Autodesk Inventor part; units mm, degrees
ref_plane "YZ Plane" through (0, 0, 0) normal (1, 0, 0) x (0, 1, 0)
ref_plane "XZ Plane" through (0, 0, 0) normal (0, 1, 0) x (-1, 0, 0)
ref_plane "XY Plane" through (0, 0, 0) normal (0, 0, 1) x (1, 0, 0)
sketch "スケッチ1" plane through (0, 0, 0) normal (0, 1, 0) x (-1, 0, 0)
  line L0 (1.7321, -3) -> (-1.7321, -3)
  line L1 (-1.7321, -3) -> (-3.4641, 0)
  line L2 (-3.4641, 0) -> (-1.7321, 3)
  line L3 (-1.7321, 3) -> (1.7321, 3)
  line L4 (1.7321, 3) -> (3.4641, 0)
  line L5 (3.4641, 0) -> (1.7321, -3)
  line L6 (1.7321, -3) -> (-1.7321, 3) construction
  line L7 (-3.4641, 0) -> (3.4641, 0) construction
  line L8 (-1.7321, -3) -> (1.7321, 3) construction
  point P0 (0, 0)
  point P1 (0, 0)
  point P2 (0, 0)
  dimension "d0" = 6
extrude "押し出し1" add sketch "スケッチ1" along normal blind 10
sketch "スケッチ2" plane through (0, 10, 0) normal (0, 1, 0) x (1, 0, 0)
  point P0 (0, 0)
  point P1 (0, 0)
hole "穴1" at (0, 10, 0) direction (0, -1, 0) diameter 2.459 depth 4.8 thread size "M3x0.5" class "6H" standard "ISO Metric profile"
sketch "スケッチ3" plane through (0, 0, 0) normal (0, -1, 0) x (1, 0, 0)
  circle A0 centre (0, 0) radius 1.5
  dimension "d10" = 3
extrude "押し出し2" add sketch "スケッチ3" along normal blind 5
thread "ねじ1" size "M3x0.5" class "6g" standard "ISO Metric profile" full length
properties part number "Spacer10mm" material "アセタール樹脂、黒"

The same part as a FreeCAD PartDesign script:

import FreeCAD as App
import Part
import Sketcher
Q = App.Units.Quantity


def add_polygon(sketch, points):
    """Adds a closed chain of lines whose ends are joined by coincident constraints."""
    first, n = sketch.GeometryCount, len(points)
    for a, b in zip(points, points[1:] + points[:1]):
        sketch.addGeometry(Part.LineSegment(App.Vector(*a, 0), App.Vector(*b, 0)), False)
    for i in range(n):
        sketch.addConstraint(Sketcher.Constraint("Coincident", first + i, 2, first + (i + 1) % n, 1))

doc = App.newDocument("Part")
body = doc.addObject("PartDesign::Body", "Body")

# Sketch on XZ plane
sketch1 = body.newObject("Sketcher::SketchObject", "Sketch")
sketch1.AttachmentSupport = (doc.getObject("XZ_Plane"), [""])
sketch1.MapMode = "FlatFace"
add_polygon(sketch1, [(1.7, -3), (-1.7, -3), (-3.5, 0), (-1.7, 3), (1.7, 3), (3.5, 0)])  # lines 0-5
sketch1.addConstraint([
    Sketcher.Constraint("Horizontal", 0),
    Sketcher.Constraint("Horizontal", 3),
    Sketcher.Constraint("Symmetric", 0, 2, 3, 2, -1, 1),
    Sketcher.Constraint("Symmetric", 1, 2, 4, 2, -1, 1),
    Sketcher.Constraint("PointOnObject", 1, 2, -1),
    Sketcher.Constraint("Parallel", 2, 5),
    Sketcher.Constraint("Vertical", 0, 2, 2, 2),
    Sketcher.Constraint("DistanceY", 0, 2, 2, 2, Q("6 mm")),
    Sketcher.Constraint("Angle", 1, Q("119.9993 deg")),
    Sketcher.Constraint("DistanceX", 0, 2, 0, 1, Q("3.4642 mm")),
])
pad1 = body.newObject("PartDesign::Pad", "Pad")
pad1.Profile = sketch1
pad1.Length = 10
pad1.Reversed = True

# Sketch on XZ plane
sketch2 = body.newObject("Sketcher::SketchObject", "Sketch001")
sketch2.AttachmentSupport = (doc.getObject("XZ_Plane"), [""])
sketch2.MapMode = "FlatFace"
sketch2.AttachmentOffset = App.Placement(App.Vector(0, 0, -10), App.Rotation())
sketch2.addGeometry(Part.Circle(App.Vector(0, 0, 0), App.Vector(0, 0, 1), 1.2), False)
sketch2.addConstraint([
    Sketcher.Constraint("Coincident", 0, 3, -1, 1),
    Sketcher.Constraint("Diameter", 0, Q("2.459 mm")),
])
doc.recompute()
hole = body.newObject("PartDesign::Hole", "Hole")
hole.Profile = sketch2
hole.ThreadType = "None"
hole.Diameter = 2.459
hole.DepthType = "Dimension"
hole.Depth = 4.8
hole.DrillPoint = "Flat"
hole.Reversed = True

# Sketch on XZ plane
sketch3 = body.newObject("Sketcher::SketchObject", "Sketch002")
sketch3.AttachmentSupport = (doc.getObject("XZ_Plane"), [""])
sketch3.MapMode = "FlatFace"
sketch3.addGeometry(Part.Circle(App.Vector(0, 0, 0), App.Vector(0, 0, 1), 1.5), False)
sketch3.addConstraint([
    Sketcher.Constraint("Coincident", 0, 3, -1, 1),
    Sketcher.Constraint("Diameter", 0, Q("3 mm")),
])
pad2 = body.newObject("PartDesign::Pad", "Pad001")
pad2.Profile = sketch3
pad2.Length = 5

doc.recompute()
